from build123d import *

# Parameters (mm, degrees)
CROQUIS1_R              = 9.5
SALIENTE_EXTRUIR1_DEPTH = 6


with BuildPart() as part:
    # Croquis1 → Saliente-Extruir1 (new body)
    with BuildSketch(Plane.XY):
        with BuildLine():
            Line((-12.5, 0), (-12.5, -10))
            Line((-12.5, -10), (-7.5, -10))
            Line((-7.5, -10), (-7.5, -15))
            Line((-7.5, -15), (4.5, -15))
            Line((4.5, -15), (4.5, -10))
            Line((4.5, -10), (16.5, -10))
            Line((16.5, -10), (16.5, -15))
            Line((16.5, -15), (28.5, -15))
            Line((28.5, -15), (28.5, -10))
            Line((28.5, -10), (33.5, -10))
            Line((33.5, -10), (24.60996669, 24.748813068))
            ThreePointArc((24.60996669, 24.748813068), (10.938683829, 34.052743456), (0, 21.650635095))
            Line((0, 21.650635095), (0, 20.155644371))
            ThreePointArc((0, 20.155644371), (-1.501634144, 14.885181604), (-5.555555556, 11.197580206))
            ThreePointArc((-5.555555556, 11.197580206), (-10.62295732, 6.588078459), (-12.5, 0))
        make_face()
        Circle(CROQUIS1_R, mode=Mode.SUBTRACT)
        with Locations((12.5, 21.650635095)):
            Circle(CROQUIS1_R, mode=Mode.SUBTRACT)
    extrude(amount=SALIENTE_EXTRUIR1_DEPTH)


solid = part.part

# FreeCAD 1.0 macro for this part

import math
import FreeCAD as App
import Part
import Sketcher

V = App.Vector
Q = App.Units.Quantity

doc = App.newDocument("Part")
body = doc.addObject("PartDesign::Body", "Body")

# Sketch on XY plane
sketch1 = body.newObject("Sketcher::SketchObject", "Sketch")
sketch1.AttachmentSupport = (doc.getObject("XY_Plane"), [""])
sketch1.MapMode = "FlatFace"
sketch1.addGeometry(Part.LineSegment(V(-12.5, 0, 0), V(-12.5, -10, 0)), False)
sketch1.addGeometry(Part.LineSegment(V(-12.5, -10, 0), V(-7.5, -10, 0)), False)
sketch1.addGeometry(Part.LineSegment(V(-7.5, -10, 0), V(-7.5, -15, 0)), False)
sketch1.addGeometry(Part.LineSegment(V(-7.5, -15, 0), V(4.5, -15, 0)), False)
sketch1.addGeometry(Part.LineSegment(V(4.5, -15, 0), V(4.5, -10, 0)), False)
sketch1.addGeometry(Part.LineSegment(V(4.5, -10, 0), V(16.5, -10, 0)), False)
sketch1.addGeometry(Part.LineSegment(V(16.5, -10, 0), V(16.5, -15, 0)), False)
sketch1.addGeometry(Part.LineSegment(V(16.5, -15, 0), V(28.5, -15, 0)), False)
sketch1.addGeometry(Part.LineSegment(V(28.5, -15, 0), V(28.5, -10, 0)), False)
sketch1.addGeometry(Part.LineSegment(V(28.5, -10, 0), V(33.5, -10, 0)), False)
sketch1.addGeometry(Part.LineSegment(V(33.5, -10, 0), V(24.6, 24.7, 0)), False)
sketch1.addGeometry(Part.ArcOfCircle(Part.Circle(V(12.5, 21.7, 0), V(0, 0, 1), 12.5), math.radians(14), math.radians(180)), False)
sketch1.addGeometry(Part.LineSegment(V(0, 21.7, 0), V(0, 20.2, 0)), False)
sketch1.addGeometry(Part.ArcOfCircle(Part.Circle(V(-10, 20.2, 0), V(0, 0, 1), 10), math.radians(-64), math.radians(0)), False)
sketch1.addGeometry(Part.ArcOfCircle(Part.Circle(V(0, 0, 0), V(0, 0, 1), 12.5), math.radians(116), math.radians(180)), False)
sketch1.addGeometry(Part.Circle(V(0, 0, 0), V(0, 0, 1), 9.5), False)
sketch1.addGeometry(Part.Circle(V(12.5, 21.7, 0), V(0, 0, 1), 9.5), False)
sketch1.addConstraint(Sketcher.Constraint("Coincident", 0, 2, 1, 1))
sketch1.addConstraint(Sketcher.Constraint("Coincident", 1, 2, 2, 1))
sketch1.addConstraint(Sketcher.Constraint("Coincident", 2, 2, 3, 1))
sketch1.addConstraint(Sketcher.Constraint("Coincident", 3, 2, 4, 1))
sketch1.addConstraint(Sketcher.Constraint("Coincident", 4, 2, 5, 1))
sketch1.addConstraint(Sketcher.Constraint("Coincident", 5, 2, 6, 1))
sketch1.addConstraint(Sketcher.Constraint("Coincident", 6, 2, 7, 1))
sketch1.addConstraint(Sketcher.Constraint("Coincident", 7, 2, 8, 1))
sketch1.addConstraint(Sketcher.Constraint("Coincident", 8, 2, 9, 1))
sketch1.addConstraint(Sketcher.Constraint("Coincident", 9, 2, 10, 1))
sketch1.addConstraint(Sketcher.Constraint("Tangent", 10, 2, 11, 1))
sketch1.addConstraint(Sketcher.Constraint("Tangent", 11, 2, 12, 1))
sketch1.addConstraint(Sketcher.Constraint("Tangent", 12, 2, 13, 2))
sketch1.addConstraint(Sketcher.Constraint("Tangent", 13, 1, 14, 1))
sketch1.addConstraint(Sketcher.Constraint("Tangent", 14, 2, 0, 1))
sketch1.addConstraint(Sketcher.Constraint("Vertical", 0))
sketch1.addConstraint(Sketcher.Constraint("Horizontal", 1))
sketch1.addConstraint(Sketcher.Constraint("Vertical", 2))
sketch1.addConstraint(Sketcher.Constraint("Horizontal", 3))
sketch1.addConstraint(Sketcher.Constraint("Vertical", 4))
sketch1.addConstraint(Sketcher.Constraint("Horizontal", 5))
sketch1.addConstraint(Sketcher.Constraint("Vertical", 6))
sketch1.addConstraint(Sketcher.Constraint("Horizontal", 7))
sketch1.addConstraint(Sketcher.Constraint("Vertical", 8))
sketch1.addConstraint(Sketcher.Constraint("Horizontal", 9))
sketch1.addConstraint(Sketcher.Constraint("Vertical", 12))
sketch1.addConstraint(Sketcher.Constraint("Coincident", 14, 3, -1, 1))
sketch1.addConstraint(Sketcher.Constraint("Coincident", 15, 3, -1, 1))
sketch1.addConstraint(Sketcher.Constraint("Coincident", 16, 3, 11, 3))
sketch1.addConstraint(Sketcher.Constraint("Equal", 11, 14))
sketch1.addConstraint(Sketcher.Constraint("Equal", 15, 16))
sketch1.addConstraint(Sketcher.Constraint("PointOnObject", 11, 2, -2))
sketch1.addConstraint(Sketcher.Constraint("Horizontal", 1, 2, 4, 2))
sketch1.addConstraint(Sketcher.Constraint("Horizontal", 3, 2, 6, 2))
sketch1.addConstraint(Sketcher.Constraint("Horizontal", 5, 2, 8, 2))
sketch1.addConstraint(Sketcher.Constraint("Equal", 3, 5))
sketch1.addConstraint(Sketcher.Constraint("Equal", 5, 7))
sketch1.addConstraint(Sketcher.Constraint("Equal", 1, 9))
sketch1.addConstraint(Sketcher.Constraint("Equal", 9, 2))
sketch1.addConstraint(Sketcher.Constraint("Diameter", 15, Q("19 mm")))
sketch1.addConstraint(Sketcher.Constraint("Radius", 13, Q("10 mm")))
sketch1.addConstraint(Sketcher.Constraint("Radius", 11, Q("12.5 mm")))
sketch1.addConstraint(Sketcher.Constraint("DistanceX", 1, 1, 1, 2, Q("5 mm")))
sketch1.addConstraint(Sketcher.Constraint("DistanceX", 3, 1, 3, 2, Q("12 mm")))
sketch1.addConstraint(Sketcher.Constraint("DistanceY", 0, 2, 0, 1, Q("10 mm")))
sketch1.addConstraint(Sketcher.Constraint("DistanceY", 12, 2, 12, 1, Q("1.494991 mm")))
pad1 = body.newObject("PartDesign::Pad", "Pad")
pad1.Profile = sketch1
pad1.Length = 6

doc.recompute()
